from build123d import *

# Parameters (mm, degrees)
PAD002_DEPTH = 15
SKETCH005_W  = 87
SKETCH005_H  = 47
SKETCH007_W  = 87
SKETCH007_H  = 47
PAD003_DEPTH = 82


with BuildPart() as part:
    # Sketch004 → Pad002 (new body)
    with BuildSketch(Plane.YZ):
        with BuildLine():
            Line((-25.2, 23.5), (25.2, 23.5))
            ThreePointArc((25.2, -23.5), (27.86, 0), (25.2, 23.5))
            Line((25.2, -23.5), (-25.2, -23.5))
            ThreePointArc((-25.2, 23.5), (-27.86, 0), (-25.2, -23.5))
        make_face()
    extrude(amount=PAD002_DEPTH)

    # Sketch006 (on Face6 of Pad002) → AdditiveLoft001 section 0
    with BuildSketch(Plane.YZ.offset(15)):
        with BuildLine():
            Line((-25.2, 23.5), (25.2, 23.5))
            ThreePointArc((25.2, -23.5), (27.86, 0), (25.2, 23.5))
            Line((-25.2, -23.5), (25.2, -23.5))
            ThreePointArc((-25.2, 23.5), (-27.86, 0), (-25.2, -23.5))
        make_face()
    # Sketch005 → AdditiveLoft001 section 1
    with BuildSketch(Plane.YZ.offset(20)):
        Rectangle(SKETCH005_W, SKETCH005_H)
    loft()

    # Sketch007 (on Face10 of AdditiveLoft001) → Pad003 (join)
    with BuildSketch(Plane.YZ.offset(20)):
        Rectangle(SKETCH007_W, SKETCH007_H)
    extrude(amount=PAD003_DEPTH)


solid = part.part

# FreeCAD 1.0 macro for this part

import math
import FreeCAD as App
import Part
import Sketcher
Q = App.Units.Quantity

doc = App.newDocument("Part")
body = doc.addObject("PartDesign::Body", "Body")

sketch1 = body.newObject("Sketcher::SketchObject", "Sketch")
sketch1.AttachmentSupport = (doc.getObject("YZ_Plane"), [""])
sketch1.MapMode = "FlatFace"
sketch1.addGeometry(Part.LineSegment(App.Vector(25, 24, 0), App.Vector(-25, 24, 0)), False)
sketch1.addGeometry(Part.ArcOfCircle(Part.Circle(App.Vector(77, 0, 0), App.Vector(0, 0, 1), 105), math.radians(167), math.radians(193)), False)
sketch1.addGeometry(Part.LineSegment(App.Vector(-25, -24, 0), App.Vector(25, -24, 0)), False)
sketch1.addGeometry(Part.ArcOfCircle(Part.Circle(App.Vector(-77, 0, 0), App.Vector(0, 0, 1), 105), math.radians(-13), math.radians(13)), False)
sketch1.addConstraint(Sketcher.Constraint("Coincident", 0, 2, 1, 1))
sketch1.addConstraint(Sketcher.Constraint("Coincident", 1, 2, 2, 1))
sketch1.addConstraint(Sketcher.Constraint("Coincident", 2, 2, 3, 1))
sketch1.addConstraint(Sketcher.Constraint("Coincident", 3, 2, 0, 1))
sketch1.addConstraint(Sketcher.Constraint("Horizontal", 0))
sketch1.addConstraint(Sketcher.Constraint("Horizontal", 2))
sketch1.addConstraint(Sketcher.Constraint("Equal", 1, 3))
sketch1.addConstraint(Sketcher.Constraint("Symmetric", 1, 3, 3, 3, -1, 1))
sketch1.addConstraint(Sketcher.Constraint("Symmetric", 0, 2, 1, 2, -1))
sketch1.addConstraint(Sketcher.Constraint("DistanceX", 0, 2, 0, 1, Q("50.4 mm")))
sketch1.addConstraint(Sketcher.Constraint("DistanceY", 1, 2, 0, 2, Q("47 mm")))
sketch1.addConstraint(Sketcher.Constraint("Radius", 1, Q("105.136391 mm")))
pad1 = body.newObject("PartDesign::Pad", "Pad")
pad1.Profile = sketch1
pad1.Length = 15

sketch2 = body.newObject("Sketcher::SketchObject", "Sketch001")
sketch2.AttachmentSupport = (doc.getObject("YZ_Plane"), [""])
sketch2.MapMode = "FlatFace"
sketch2.AttachmentOffset = App.Placement(App.Vector(0, 0, 15), App.Rotation())
sketch2.addGeometry(Part.LineSegment(App.Vector(25, 24, 0), App.Vector(-25, 24, 0)), False)
sketch2.addGeometry(Part.ArcOfCircle(Part.Circle(App.Vector(77, 0, 0), App.Vector(0, 0, 1), 105), math.radians(167), math.radians(193)), False)
sketch2.addGeometry(Part.LineSegment(App.Vector(-25, -24, 0), App.Vector(25, -24, 0)), False)
sketch2.addGeometry(Part.ArcOfCircle(Part.Circle(App.Vector(-77, 0, 0), App.Vector(0, 0, 1), 105), math.radians(-13), math.radians(13)), False)
sketch2.addConstraint(Sketcher.Constraint("Coincident", 0, 2, 1, 1))
sketch2.addConstraint(Sketcher.Constraint("Coincident", 1, 2, 2, 1))
sketch2.addConstraint(Sketcher.Constraint("Coincident", 2, 2, 3, 1))
sketch2.addConstraint(Sketcher.Constraint("Coincident", 3, 2, 0, 1))
sketch2.addConstraint(Sketcher.Constraint("Horizontal", 0))
sketch2.addConstraint(Sketcher.Constraint("Horizontal", 2))
sketch2.addConstraint(Sketcher.Constraint("Equal", 1, 3))
sketch2.addConstraint(Sketcher.Constraint("Symmetric", 1, 3, 3, 3, -1, 1))
sketch2.addConstraint(Sketcher.Constraint("Symmetric", 0, 2, 1, 2, -1))
sketch2.addConstraint(Sketcher.Constraint("DistanceX", 0, 2, 0, 1, Q("50.4 mm")))
sketch2.addConstraint(Sketcher.Constraint("DistanceY", 1, 2, 0, 2, Q("47 mm")))
sketch2.addConstraint(Sketcher.Constraint("Radius", 1, Q("105.136391 mm")))

sketch3 = body.newObject("Sketcher::SketchObject", "Sketch002")
sketch3.AttachmentSupport = (doc.getObject("YZ_Plane"), [""])
sketch3.MapMode = "FlatFace"
sketch3.AttachmentOffset = App.Placement(App.Vector(0, 0, 20), App.Rotation())
sketch3.addGeometry(Part.LineSegment(App.Vector(-44, 24, 0), App.Vector(-44, -24, 0)), False)
sketch3.addGeometry(Part.LineSegment(App.Vector(-44, -24, 0), App.Vector(44, -24, 0)), False)
sketch3.addGeometry(Part.LineSegment(App.Vector(44, -24, 0), App.Vector(44, 24, 0)), False)
sketch3.addGeometry(Part.LineSegment(App.Vector(44, 24, 0), App.Vector(-44, 24, 0)), False)
sketch3.addConstraint(Sketcher.Constraint("Coincident", 0, 2, 1, 1))
sketch3.addConstraint(Sketcher.Constraint("Coincident", 1, 2, 2, 1))
sketch3.addConstraint(Sketcher.Constraint("Coincident", 2, 2, 3, 1))
sketch3.addConstraint(Sketcher.Constraint("Coincident", 3, 2, 0, 1))
sketch3.addConstraint(Sketcher.Constraint("Vertical", 0))
sketch3.addConstraint(Sketcher.Constraint("Horizontal", 1))
sketch3.addConstraint(Sketcher.Constraint("Vertical", 2))
sketch3.addConstraint(Sketcher.Constraint("Horizontal", 3))
sketch3.addConstraint(Sketcher.Constraint("Symmetric", 0, 2, 2, 2, -1, 1))
sketch3.addConstraint(Sketcher.Constraint("DistanceX", 1, 1, 1, 2, Q("87 mm")))
sketch3.addConstraint(Sketcher.Constraint("DistanceY", 0, 2, 0, 1, Q("47 mm")))

additiveloft = body.newObject("PartDesign::AdditiveLoft", "AdditiveLoft")
additiveloft.Profile = sketch2
additiveloft.Sections = [sketch3]

sketch4 = body.newObject("Sketcher::SketchObject", "Sketch003")
sketch4.AttachmentSupport = (doc.getObject("YZ_Plane"), [""])
sketch4.MapMode = "FlatFace"
sketch4.AttachmentOffset = App.Placement(App.Vector(0, 0, 20), App.Rotation())
sketch4.addGeometry(Part.LineSegment(App.Vector(-44, 24, 0), App.Vector(-44, -24, 0)), False)
sketch4.addGeometry(Part.LineSegment(App.Vector(-44, -24, 0), App.Vector(44, -24, 0)), False)
sketch4.addGeometry(Part.LineSegment(App.Vector(44, -24, 0), App.Vector(44, 24, 0)), False)
sketch4.addGeometry(Part.LineSegment(App.Vector(44, 24, 0), App.Vector(-44, 24, 0)), False)
sketch4.addConstraint(Sketcher.Constraint("Coincident", 0, 2, 1, 1))
sketch4.addConstraint(Sketcher.Constraint("Coincident", 1, 2, 2, 1))
sketch4.addConstraint(Sketcher.Constraint("Coincident", 2, 2, 3, 1))
sketch4.addConstraint(Sketcher.Constraint("Coincident", 3, 2, 0, 1))
sketch4.addConstraint(Sketcher.Constraint("Vertical", 0))
sketch4.addConstraint(Sketcher.Constraint("Horizontal", 1))
sketch4.addConstraint(Sketcher.Constraint("Vertical", 2))
sketch4.addConstraint(Sketcher.Constraint("Horizontal", 3))
sketch4.addConstraint(Sketcher.Constraint("Symmetric", 0, 2, 2, 2, -1, 1))
sketch4.addConstraint(Sketcher.Constraint("DistanceX", 1, 1, 1, 2, Q("87 mm")))
sketch4.addConstraint(Sketcher.Constraint("DistanceY", 0, 2, 0, 1, Q("47 mm")))
pad2 = body.newObject("PartDesign::Pad", "Pad001")
pad2.Profile = sketch4
pad2.Length = 82

doc.recompute()
